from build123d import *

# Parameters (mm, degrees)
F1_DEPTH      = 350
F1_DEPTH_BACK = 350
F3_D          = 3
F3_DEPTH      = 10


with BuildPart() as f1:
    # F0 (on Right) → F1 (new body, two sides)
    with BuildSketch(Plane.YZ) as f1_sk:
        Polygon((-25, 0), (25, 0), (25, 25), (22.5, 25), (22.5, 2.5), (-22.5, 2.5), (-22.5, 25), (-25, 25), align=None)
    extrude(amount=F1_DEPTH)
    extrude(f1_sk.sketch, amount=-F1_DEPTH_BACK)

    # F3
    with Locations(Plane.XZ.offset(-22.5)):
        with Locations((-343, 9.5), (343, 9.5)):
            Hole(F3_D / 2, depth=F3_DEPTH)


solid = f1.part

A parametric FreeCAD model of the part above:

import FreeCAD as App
import Part
import Sketcher

V = App.Vector
Q = App.Units.Quantity


def add_polygon(sketch, points):
    """Adds a closed chain of lines whose ends are joined by coincident constraints."""
    first, n = sketch.GeometryCount, len(points)
    for a, b in zip(points, points[1:] + points[:1]):
        sketch.addGeometry(Part.LineSegment(App.Vector(*a, 0), App.Vector(*b, 0)), False)
    for i in range(n):
        sketch.addConstraint(Sketcher.Constraint("Coincident", first + i, 2, first + (i + 1) % n, 1))

doc = App.newDocument("Part")
params = doc.addObject("Spreadsheet::Sheet", "Params")
for row, (alias, value) in enumerate([
    ("sketch1_width", "50 mm"),
    ("sketch1_width2", "45 mm"),
    ("sketch1_height", "25 mm"),
    ("sketch1_height2", "22.5 mm"),
    ("pad1_length", "350 mm"),
    ("pad1_length2", "350 mm"),
    ("sketch2_diameter", "3 mm"),
    ("hole_diameter", "3 mm"),
    ("hole_depth", "10 mm"),
], start=1):
    params.set(f"A{row}", alias)
    params.set(f"B{row}", "=" + value)
    params.setAlias(f"B{row}", alias)

body = doc.addObject("PartDesign::Body", "Body")

# Sketch on YZ plane
sketch1 = doc.addObject("Sketcher::SketchObject", "Sketch")
body.addObject(sketch1)
sketch1.AttachmentSupport = (doc.YZ_Plane, [""])
sketch1.MapMode = "FlatFace"
add_polygon(sketch1, [(-25, 0), (25, 0), (25, 25), (22.5, 25), (22.5, 2.5), (-22.5, 2.5), (-22.5, 25), (-25, 25)])  # lines 0-7
sketch1.addConstraint([
    Sketcher.Constraint("Horizontal", 0),
    Sketcher.Constraint("Vertical", 1),
    Sketcher.Constraint("Horizontal", 2),
    Sketcher.Constraint("Vertical", 3),
    Sketcher.Constraint("Horizontal", 4),
    Sketcher.Constraint("Vertical", 5),
    Sketcher.Constraint("Horizontal", 6),
    Sketcher.Constraint("Vertical", 7),
    Sketcher.Constraint("Symmetric", 0, 2, 7, 2, -1, 1),
    Sketcher.Constraint("Symmetric", 2, 2, 5, 2, -2),
    Sketcher.Constraint("DistanceX", 0, 1, 0, 2, Q("50 mm")),
    Sketcher.Constraint("DistanceX", 4, 2, 4, 1, Q("45 mm")),
    Sketcher.Constraint("DistanceY", 1, 1, 1, 2, Q("25 mm")),
    Sketcher.Constraint("DistanceY", 3, 2, 3, 1, Q("22.5 mm")),
])
sketch1.setExpression("Constraints[18]", "Params.sketch1_width")
sketch1.setExpression("Constraints[19]", "Params.sketch1_width2")
sketch1.setExpression("Constraints[20]", "Params.sketch1_height")
sketch1.setExpression("Constraints[21]", "Params.sketch1_height2")
pad1 = doc.addObject("PartDesign::Pad", "Pad")
body.addObject(pad1)
pad1.Profile = sketch1
pad1.Type = "TwoLengths"
pad1.setExpression("Length", "Params.pad1_length")
pad1.setExpression("Length2", "Params.pad1_length2")

# Sketch on XZ plane
sketch2 = doc.addObject("Sketcher::SketchObject", "Sketch001")
body.addObject(sketch2)
sketch2.AttachmentSupport = (doc.XZ_Plane, [""])
sketch2.MapMode = "FlatFace"
sketch2.AttachmentOffset = App.Placement(V(0, 0, -22.5), App.Rotation())
sketch2.addGeometry([
    Part.Circle(V(-343, 9.5, 0), V(0, 0, 1), 1.5),
    Part.Circle(V(343, 9.5, 0), V(0, 0, 1), 1.5),
], False)
sketch2.addConstraint([
    Sketcher.Constraint("Equal", 0, 1),
    Sketcher.Constraint("Symmetric", 0, 3, 1, 3, -2),
    Sketcher.Constraint("Diameter", 0, Q("3 mm")),
    Sketcher.Constraint("DistanceX", 0, 3, -1, 1, Q("343 mm")),
    Sketcher.Constraint("DistanceY", -1, 1, 0, 3, Q("9.5 mm")),
])
sketch2.setExpression("Constraints[2]", "Params.sketch2_diameter")
doc.recompute()
hole = doc.addObject("PartDesign::Hole", "Hole")
body.addObject(hole)
hole.Profile = sketch2
hole.ThreadType = "None"
hole.setExpression("Diameter", "Params.hole_diameter")
hole.DepthType = "Dimension"
hole.setExpression("Depth", "Params.hole_depth")
hole.DrillPoint = "Flat"

doc.recompute()
